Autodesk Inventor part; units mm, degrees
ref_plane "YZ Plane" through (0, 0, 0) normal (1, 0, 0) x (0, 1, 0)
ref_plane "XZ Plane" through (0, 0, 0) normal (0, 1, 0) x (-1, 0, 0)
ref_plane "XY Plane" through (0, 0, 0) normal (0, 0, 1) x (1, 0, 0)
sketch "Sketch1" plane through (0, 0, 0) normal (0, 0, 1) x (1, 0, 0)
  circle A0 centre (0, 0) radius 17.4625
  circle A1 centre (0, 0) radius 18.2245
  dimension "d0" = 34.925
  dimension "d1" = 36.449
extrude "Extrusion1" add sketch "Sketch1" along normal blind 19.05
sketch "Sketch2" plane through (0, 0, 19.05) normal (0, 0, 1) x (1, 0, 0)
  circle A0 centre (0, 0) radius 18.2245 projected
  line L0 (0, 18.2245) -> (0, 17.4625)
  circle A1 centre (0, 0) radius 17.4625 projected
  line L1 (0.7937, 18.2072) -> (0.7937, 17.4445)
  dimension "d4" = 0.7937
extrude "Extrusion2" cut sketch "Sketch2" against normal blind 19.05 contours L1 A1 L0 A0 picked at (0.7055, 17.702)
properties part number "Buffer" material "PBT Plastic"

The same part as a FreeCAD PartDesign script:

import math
import FreeCAD as App
import Part
import Sketcher

V = App.Vector
Q = App.Units.Quantity

doc = App.newDocument("Part")
params = doc.addObject("Spreadsheet::Sheet", "Params")
for row, (alias, value) in enumerate([
    ("sketch1_diameter", "1.435 in"),
    ("sketch1_diameter2", "1.375 in"),
    ("pad1_length", "0.75 in"),
    ("sketch2_radius", "0.6875 in"),
    ("sketch2_height", "0.03 in"),
    ("pocket1_length", "0.75 in"),
], start=1):
    params.set(f"A{row}", alias)
    params.set(f"B{row}", "=" + value)
    params.setAlias(f"B{row}", alias)

body = doc.addObject("PartDesign::Body", "Body")

# Sketch on XY plane
sketch1 = body.newObject("Sketcher::SketchObject", "Sketch")
sketch1.AttachmentSupport = (doc.getObject("XY_Plane"), [""])
sketch1.MapMode = "FlatFace"
sketch1.addGeometry([
    Part.Circle(V(0, 0, 0), V(0, 0, 1), 18),
    Part.Circle(V(0, 0, 0), V(0, 0, 1), 17),
], False)
sketch1.addConstraint([
    Sketcher.Constraint("Coincident", 0, 3, -1, 1),
    Sketcher.Constraint("Coincident", 1, 3, -1, 1),
    Sketcher.Constraint("Diameter", 0, Q("1.435 in")),
    Sketcher.Constraint("Diameter", 1, Q("1.375 in")),
])
sketch1.setExpression("Constraints[2]", "Params.sketch1_diameter")
sketch1.setExpression("Constraints[3]", "Params.sketch1_diameter2")
pad1 = body.newObject("PartDesign::Pad", "Pad")
pad1.Profile = sketch1
pad1.setExpression("Length", "Params.pad1_length")

# Sketch on XY plane
sketch2 = body.newObject("Sketcher::SketchObject", "Sketch001")
sketch2.AttachmentSupport = (doc.getObject("XY_Plane"), [""])
sketch2.MapMode = "FlatFace"
sketch2.AttachmentOffset = App.Placement(V(0, 0, 0.75 * 25.4), App.Rotation())
sketch2.addGeometry([
    Part.LineSegment(V(0.8, 17.4, 0), V(0.8, 18.2, 0)),
    Part.ArcOfCircle(Part.Circle(V(0, 0, 0), V(0, 0, 1), 18.2), math.radians(87.5), math.radians(90)),
    Part.LineSegment(V(0, 18.2, 0), V(0, 17.5, 0)),
    Part.ArcOfCircle(Part.Circle(V(0, 0, 0), V(0, 0, 1), 17.5), math.radians(87.39), math.radians(90)),
], False)
sketch2.addConstraint([
    Sketcher.Constraint("Coincident", 0, 2, 1, 1),
    Sketcher.Constraint("Coincident", 1, 2, 2, 1),
    Sketcher.Constraint("Coincident", 2, 2, 3, 2),
    Sketcher.Constraint("Coincident", 3, 1, 0, 1),
    Sketcher.Constraint("Vertical", 0),
    Sketcher.Constraint("Vertical", 2),
    Sketcher.Constraint("Coincident", 1, 3, -1, 1),
    Sketcher.Constraint("Coincident", 3, 3, -1, 1),
    Sketcher.Constraint("PointOnObject", 1, 2, -2),
    Sketcher.Constraint("DistanceX", -1, 1, 0, 2, Q("0.031248 in")),
    Sketcher.Constraint("Radius", 3, Q("0.6875 in")),
    Sketcher.Constraint("DistanceY", 2, 2, 2, 1, Q("0.03 in")),
])
sketch2.setExpression("Constraints[10]", "Params.sketch2_radius")
sketch2.setExpression("Constraints[11]", "Params.sketch2_height")
pocket1 = body.newObject("PartDesign::Pocket", "Pocket")
pocket1.Profile = sketch2
pocket1.setExpression("Length", "Params.pocket1_length")

doc.recompute()
